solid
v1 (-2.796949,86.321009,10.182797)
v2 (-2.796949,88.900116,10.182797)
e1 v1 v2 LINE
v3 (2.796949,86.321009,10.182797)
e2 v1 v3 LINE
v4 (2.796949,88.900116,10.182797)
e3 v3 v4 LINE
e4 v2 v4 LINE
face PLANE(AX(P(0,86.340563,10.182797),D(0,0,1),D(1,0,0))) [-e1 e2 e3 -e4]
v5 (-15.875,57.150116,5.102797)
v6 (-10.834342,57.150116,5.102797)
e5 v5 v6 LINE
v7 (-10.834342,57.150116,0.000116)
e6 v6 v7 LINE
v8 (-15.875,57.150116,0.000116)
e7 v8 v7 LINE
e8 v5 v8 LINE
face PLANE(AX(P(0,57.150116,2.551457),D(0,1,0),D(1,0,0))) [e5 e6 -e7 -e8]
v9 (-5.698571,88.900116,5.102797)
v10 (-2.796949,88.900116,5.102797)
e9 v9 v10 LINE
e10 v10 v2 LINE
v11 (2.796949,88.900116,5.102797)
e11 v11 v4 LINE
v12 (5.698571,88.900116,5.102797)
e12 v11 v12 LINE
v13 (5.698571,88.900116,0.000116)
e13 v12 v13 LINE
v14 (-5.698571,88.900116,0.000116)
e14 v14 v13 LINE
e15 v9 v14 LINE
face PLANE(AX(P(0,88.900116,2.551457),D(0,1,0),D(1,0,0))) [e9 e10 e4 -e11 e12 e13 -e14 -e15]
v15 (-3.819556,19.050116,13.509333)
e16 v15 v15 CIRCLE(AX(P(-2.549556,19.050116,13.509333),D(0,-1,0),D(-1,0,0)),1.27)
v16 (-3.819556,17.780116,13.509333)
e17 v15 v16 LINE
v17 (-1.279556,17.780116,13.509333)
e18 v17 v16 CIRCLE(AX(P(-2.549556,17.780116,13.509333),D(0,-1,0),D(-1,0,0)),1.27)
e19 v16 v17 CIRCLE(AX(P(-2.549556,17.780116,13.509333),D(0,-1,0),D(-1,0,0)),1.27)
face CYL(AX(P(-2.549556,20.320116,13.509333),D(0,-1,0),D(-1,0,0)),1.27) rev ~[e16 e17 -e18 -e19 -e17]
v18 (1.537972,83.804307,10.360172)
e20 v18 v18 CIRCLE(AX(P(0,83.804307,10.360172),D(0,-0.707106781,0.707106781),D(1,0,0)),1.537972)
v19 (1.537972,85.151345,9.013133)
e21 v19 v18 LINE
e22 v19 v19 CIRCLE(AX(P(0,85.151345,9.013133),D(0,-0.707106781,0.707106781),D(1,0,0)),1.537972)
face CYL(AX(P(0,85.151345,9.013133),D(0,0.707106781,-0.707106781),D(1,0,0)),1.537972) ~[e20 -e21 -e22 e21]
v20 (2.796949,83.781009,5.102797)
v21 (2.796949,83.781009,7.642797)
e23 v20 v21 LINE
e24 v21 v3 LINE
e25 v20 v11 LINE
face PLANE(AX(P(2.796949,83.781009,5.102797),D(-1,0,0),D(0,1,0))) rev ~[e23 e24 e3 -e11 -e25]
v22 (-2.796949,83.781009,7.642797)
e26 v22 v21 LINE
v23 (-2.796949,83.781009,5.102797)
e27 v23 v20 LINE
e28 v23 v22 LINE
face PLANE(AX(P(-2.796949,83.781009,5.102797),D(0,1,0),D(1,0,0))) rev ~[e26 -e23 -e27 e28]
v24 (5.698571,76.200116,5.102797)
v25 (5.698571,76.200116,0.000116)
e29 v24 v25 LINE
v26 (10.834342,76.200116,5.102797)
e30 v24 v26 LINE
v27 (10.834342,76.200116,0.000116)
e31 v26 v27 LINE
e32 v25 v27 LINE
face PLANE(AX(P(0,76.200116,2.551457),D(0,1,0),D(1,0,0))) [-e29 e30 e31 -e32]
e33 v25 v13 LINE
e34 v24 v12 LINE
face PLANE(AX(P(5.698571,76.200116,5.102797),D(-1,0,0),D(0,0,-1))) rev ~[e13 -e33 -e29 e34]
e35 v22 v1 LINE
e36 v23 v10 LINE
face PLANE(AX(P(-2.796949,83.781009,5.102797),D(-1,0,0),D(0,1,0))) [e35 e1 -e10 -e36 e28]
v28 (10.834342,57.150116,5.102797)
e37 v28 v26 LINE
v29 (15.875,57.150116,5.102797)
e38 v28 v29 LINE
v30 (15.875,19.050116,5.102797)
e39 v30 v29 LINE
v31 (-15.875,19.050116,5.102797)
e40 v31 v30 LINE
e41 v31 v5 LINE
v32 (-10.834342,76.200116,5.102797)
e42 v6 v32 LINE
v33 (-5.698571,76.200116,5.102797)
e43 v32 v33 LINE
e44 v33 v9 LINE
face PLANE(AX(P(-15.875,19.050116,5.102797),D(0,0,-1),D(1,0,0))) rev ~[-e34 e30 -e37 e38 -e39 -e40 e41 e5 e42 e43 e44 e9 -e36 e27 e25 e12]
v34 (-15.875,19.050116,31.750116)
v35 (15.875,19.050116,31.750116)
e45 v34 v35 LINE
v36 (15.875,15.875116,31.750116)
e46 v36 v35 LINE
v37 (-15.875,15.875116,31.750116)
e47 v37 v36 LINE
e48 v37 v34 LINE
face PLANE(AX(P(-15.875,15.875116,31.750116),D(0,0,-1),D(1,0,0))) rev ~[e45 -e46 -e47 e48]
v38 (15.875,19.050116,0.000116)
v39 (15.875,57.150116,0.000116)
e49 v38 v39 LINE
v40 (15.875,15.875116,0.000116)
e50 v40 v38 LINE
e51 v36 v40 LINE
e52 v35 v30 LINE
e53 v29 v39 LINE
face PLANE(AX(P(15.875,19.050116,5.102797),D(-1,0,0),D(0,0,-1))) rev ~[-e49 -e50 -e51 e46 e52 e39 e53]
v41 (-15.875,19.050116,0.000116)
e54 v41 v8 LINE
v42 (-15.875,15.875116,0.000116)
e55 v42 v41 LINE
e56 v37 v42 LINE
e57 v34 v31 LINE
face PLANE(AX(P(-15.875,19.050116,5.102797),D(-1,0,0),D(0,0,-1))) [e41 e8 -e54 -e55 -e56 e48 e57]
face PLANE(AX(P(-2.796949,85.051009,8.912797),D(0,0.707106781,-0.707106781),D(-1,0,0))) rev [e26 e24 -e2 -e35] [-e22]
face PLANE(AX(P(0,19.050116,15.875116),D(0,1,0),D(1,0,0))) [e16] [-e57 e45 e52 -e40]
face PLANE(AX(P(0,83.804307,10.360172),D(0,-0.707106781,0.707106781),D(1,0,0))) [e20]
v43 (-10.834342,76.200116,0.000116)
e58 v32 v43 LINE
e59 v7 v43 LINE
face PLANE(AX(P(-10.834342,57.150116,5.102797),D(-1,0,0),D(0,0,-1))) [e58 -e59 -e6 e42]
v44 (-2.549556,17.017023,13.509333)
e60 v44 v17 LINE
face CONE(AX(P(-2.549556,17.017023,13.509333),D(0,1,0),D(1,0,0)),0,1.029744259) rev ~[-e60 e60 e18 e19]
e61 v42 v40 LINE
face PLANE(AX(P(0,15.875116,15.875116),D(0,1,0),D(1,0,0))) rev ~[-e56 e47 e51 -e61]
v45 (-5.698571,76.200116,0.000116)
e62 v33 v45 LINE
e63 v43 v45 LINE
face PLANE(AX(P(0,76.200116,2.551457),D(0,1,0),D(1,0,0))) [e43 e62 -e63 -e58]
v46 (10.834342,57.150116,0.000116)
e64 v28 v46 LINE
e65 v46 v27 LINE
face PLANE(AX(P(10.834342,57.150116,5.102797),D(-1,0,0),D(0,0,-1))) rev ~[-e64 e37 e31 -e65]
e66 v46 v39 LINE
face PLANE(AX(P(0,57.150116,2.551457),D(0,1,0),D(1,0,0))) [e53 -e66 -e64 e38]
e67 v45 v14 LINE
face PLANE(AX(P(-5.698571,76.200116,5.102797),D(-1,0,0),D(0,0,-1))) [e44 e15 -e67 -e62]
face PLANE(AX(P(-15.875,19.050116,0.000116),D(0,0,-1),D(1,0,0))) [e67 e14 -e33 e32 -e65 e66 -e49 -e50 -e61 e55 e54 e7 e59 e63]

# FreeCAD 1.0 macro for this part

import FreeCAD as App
import Part
import Sketcher
from FreeCAD import Vector
Q = App.Units.Quantity


def edges_at(feature, points):
    """Names of the edges that pass closest to the given points."""
    edges = feature.Shape.Edges
    near = lambda p: min(range(len(edges)), key=lambda i: edges[i].distToShape(Part.Vertex(*p))[0])
    return sorted({f"Edge{near(p) + 1}" for p in points})


def add_polygon(sketch, points):
    """Adds a closed chain of lines whose ends are joined by coincident constraints."""
    first, n = sketch.GeometryCount, len(points)
    for a, b in zip(points, points[1:] + points[:1]):
        sketch.addGeometry(Part.LineSegment(App.Vector(*a, 0), App.Vector(*b, 0)), False)
    for i in range(n):
        sketch.addConstraint(Sketcher.Constraint("Coincident", first + i, 2, first + (i + 1) % n, 1))

doc = App.newDocument("Part")
body = doc.addObject("PartDesign::Body", "Body")

# Sketch on XY plane
sketch1 = doc.addObject("Sketcher::SketchObject", "Sketch")
body.addObject(sketch1)
sketch1.AttachmentSupport = (doc.XY_Plane, [""])
sketch1.MapMode = "FlatFace"
add_polygon(sketch1, [(-15.875, 15.875), (-15.875, -15.875), (15.875, -15.875), (15.875, 15.875)])  # lines 0-3
sketch1.addConstraint([
    Sketcher.Constraint("Vertical", 0),
    Sketcher.Constraint("Horizontal", 1),
    Sketcher.Constraint("Vertical", 2),
    Sketcher.Constraint("Horizontal", 3),
    Sketcher.Constraint("Symmetric", 0, 2, 2, 2, -1, 1),
    Sketcher.Constraint("Equal", 3, 0),
    Sketcher.Constraint("DistanceX", 1, 1, 1, 2, Q("1.25 in")),
])
pad1 = doc.addObject("PartDesign::Pad", "Pad")
body.addObject(pad1)
pad1.Profile = sketch1
pad1.Length = Q("0.125 in")

# Sketch on XY plane
sketch2 = doc.addObject("Sketcher::SketchObject", "Sketch001")
body.addObject(sketch2)
sketch2.AttachmentSupport = (doc.XY_Plane, [""])
sketch2.MapMode = "FlatFace"
sketch2.AttachmentOffset = App.Placement(Vector(0, 0, 0.125 * 25.4), App.Rotation())
sketch2.addGeometry(Part.Circle(Vector(-2.549556, 2.365783, 0), Vector(0, 0, 1), 1.27), False)
sketch2.addConstraint([
    Sketcher.Constraint("Diameter", 0, Q("0.1 in")),
    Sketcher.Constraint("DistanceX", 0, 3, -1, 1, Q("2.549556 mm")),
    Sketcher.Constraint("DistanceY", -1, 1, 0, 3, Q("2.365783 mm")),
])
doc.recompute()
hole = doc.addObject("PartDesign::Hole", "Hole")
body.addObject(hole)
hole.Profile = sketch2
hole.ThreadType = "None"
hole.Diameter = Q("0.1 in")
hole.DepthType = "Dimension"
hole.Depth = Q("0.05 in")
hole.DrillPoint = "Angled"
hole.DrillPointAngle = 118

# Sketch on XY plane
sketch3 = doc.addObject("Sketcher::SketchObject", "Sketch002")
body.addObject(sketch3)
sketch3.AttachmentSupport = (doc.XY_Plane, [""])
sketch3.MapMode = "FlatFace"
sketch3.AttachmentOffset = App.Placement(Vector(0, 0, 0.125 * 25.4), App.Rotation())
add_polygon(sketch3, [(-15.875, 15.875), (-15.875, 10.772319), (15.875, 10.772319), (15.875, 15.875)])  # lines 0-3
sketch3.addConstraint([
    Sketcher.Constraint("Vertical", 0),
    Sketcher.Constraint("Horizontal", 1),
    Sketcher.Constraint("Vertical", 2),
    Sketcher.Constraint("Horizontal", 3),
    Sketcher.Constraint("DistanceX", 1, 1, 1, 2, Q("1.25 in")),
    Sketcher.Constraint("DistanceX", 0, 2, -1, 1, Q("0.625 in")),
    Sketcher.Constraint("DistanceY", -1, 1, 2, 2, Q("0.625 in")),
    Sketcher.Constraint("DistanceY", 0, 2, 0, 1, Q("5.102681 mm")),
])
pad2 = doc.addObject("PartDesign::Pad", "Pad001")
body.addObject(pad2)
pad2.Profile = sketch3
pad2.Length = Q("1.5 in")

# Sketch on XY plane
sketch4 = doc.addObject("Sketcher::SketchObject", "Sketch003")
body.addObject(sketch4)
sketch4.AttachmentSupport = (doc.XY_Plane, [""])
sketch4.MapMode = "FlatFace"
sketch4.AttachmentOffset = App.Placement(Vector(0, 0, 1.625 * 25.4), App.Rotation())
add_polygon(sketch4, [(-10.834342, 15.875), (-10.834342, 10.772319), (10.834342, 10.772319), (10.834342, 15.875)])  # lines 0-3
sketch4.addConstraint([
    Sketcher.Constraint("Vertical", 0),
    Sketcher.Constraint("Horizontal", 1),
    Sketcher.Constraint("Vertical", 2),
    Sketcher.Constraint("Horizontal", 3),
    Sketcher.Constraint("DistanceY", -1, 1, 2, 2, Q("0.625 in")),
    Sketcher.Constraint("DistanceY", 0, 2, 0, 1, Q("5.102681 mm")),
    Sketcher.Constraint("DistanceX", 1, 1, 1, 2, Q("21.668684 mm")),
    Sketcher.Constraint("DistanceX", 0, 2, -1, 1, Q("10.834342 mm")),
])
pad3 = doc.addObject("PartDesign::Pad", "Pad002")
body.addObject(pad3)
pad3.Profile = sketch4
pad3.Length = Q("0.75 in")

# Sketch on XY plane
sketch5 = doc.addObject("Sketcher::SketchObject", "Sketch004")
body.addObject(sketch5)
sketch5.AttachmentSupport = (doc.XY_Plane, [""])
sketch5.MapMode = "FlatFace"
sketch5.AttachmentOffset = App.Placement(Vector(0, 0, 2.375 * 25.4), App.Rotation())
add_polygon(sketch5, [(-5.698571, 15.875), (-5.698571, 10.772319), (5.698571, 10.772319), (5.698571, 15.875)])  # lines 0-3
sketch5.addConstraint([
    Sketcher.Constraint("Vertical", 0),
    Sketcher.Constraint("Horizontal", 1),
    Sketcher.Constraint("Vertical", 2),
    Sketcher.Constraint("Horizontal", 3),
    Sketcher.Constraint("DistanceY", -1, 1, 2, 2, Q("0.625 in")),
    Sketcher.Constraint("DistanceY", 0, 2, 0, 1, Q("5.102681 mm")),
    Sketcher.Constraint("DistanceX", 1, 1, 1, 2, Q("11.397143 mm")),
    Sketcher.Constraint("DistanceX", 0, 2, -1, 1, Q("5.698571 mm")),
])
pad4 = doc.addObject("PartDesign::Pad", "Pad003")
body.addObject(pad4)
pad4.Profile = sketch5
pad4.Length = Q("0.5 in")

# Sketch on XZ plane
sketch6 = doc.addObject("Sketcher::SketchObject", "Sketch005")
body.addObject(sketch6)
sketch6.AttachmentSupport = (doc.XZ_Plane, [""])
sketch6.MapMode = "FlatFace"
sketch6.AttachmentOffset = App.Placement(Vector(0, 0, -10.772319), App.Rotation())
add_polygon(sketch6, [(-2.796949, 73.025), (-2.796949, 67.905893), (2.796949, 67.905893), (2.796949, 73.025)])  # lines 0-3
sketch6.addConstraint([
    Sketcher.Constraint("Vertical", 0),
    Sketcher.Constraint("Horizontal", 1),
    Sketcher.Constraint("Vertical", 2),
    Sketcher.Constraint("Horizontal", 3),
    Sketcher.Constraint("DistanceY", -1, 1, 2, 2, Q("2.875 in")),
    Sketcher.Constraint("DistanceX", 1, 1, 1, 2, Q("5.593898 mm")),
    Sketcher.Constraint("DistanceY", 0, 2, 0, 1, Q("5.119107 mm")),
    Sketcher.Constraint("DistanceX", 0, 2, -1, 1, Q("2.796949 mm")),
])
pad5 = doc.addObject("PartDesign::Pad", "Pad004")
body.addObject(pad5)
pad5.Profile = sketch6
pad5.Length = Q("0.2 in")
doc.recompute()

chamfer = doc.addObject("PartDesign::Chamfer", "Chamfer")
body.addObject(chamfer)
chamfer.Base = (pad5, edges_at(pad5, [(0, 5.692, 67.906)]))
chamfer.Size = Q("0.1 in")
body2 = doc.addObject("PartDesign::Body", "Body001")
doc.recompute()

body.Placement = App.Placement(Vector(0, 15.875116, 15.875116), App.Rotation(Vector(1, 0, 0), 270))
boolean = doc.addObject("PartDesign::Boolean", "Boolean")
body2.addObject(boolean)
boolean.Type = "Fuse"
boolean.addObjects([body])

# Sketch on an angled plane
sketch7 = doc.addObject("Sketcher::SketchObject", "Sketch006")
body2.addObject(sketch7)
sketch7.Placement = App.Placement(Vector(0, 38.069106, -38.069106), App.Rotation(Vector(1, 0, 0), Vector(0, 0.707106781, 0.707106781), Vector(0, -0.707106781, 0.707106781), "ZXY"))
sketch7.addGeometry(Part.Circle(Vector(0, 66.584341, 0), Vector(0, 0, 1), 1.537972), False)
sketch7.addConstraint([
    Sketcher.Constraint("PointOnObject", 0, 3, -2),
    Sketcher.Constraint("Diameter", 0, Q("0.1211002 in")),
    Sketcher.Constraint("DistanceY", -1, 1, 0, 3, Q("66.584341 mm")),
])
pad6 = doc.addObject("PartDesign::Pad", "Pad005")
body2.addObject(pad6)
pad6.Profile = sketch7
pad6.Length = Q("0.075 in")

doc.recompute()
